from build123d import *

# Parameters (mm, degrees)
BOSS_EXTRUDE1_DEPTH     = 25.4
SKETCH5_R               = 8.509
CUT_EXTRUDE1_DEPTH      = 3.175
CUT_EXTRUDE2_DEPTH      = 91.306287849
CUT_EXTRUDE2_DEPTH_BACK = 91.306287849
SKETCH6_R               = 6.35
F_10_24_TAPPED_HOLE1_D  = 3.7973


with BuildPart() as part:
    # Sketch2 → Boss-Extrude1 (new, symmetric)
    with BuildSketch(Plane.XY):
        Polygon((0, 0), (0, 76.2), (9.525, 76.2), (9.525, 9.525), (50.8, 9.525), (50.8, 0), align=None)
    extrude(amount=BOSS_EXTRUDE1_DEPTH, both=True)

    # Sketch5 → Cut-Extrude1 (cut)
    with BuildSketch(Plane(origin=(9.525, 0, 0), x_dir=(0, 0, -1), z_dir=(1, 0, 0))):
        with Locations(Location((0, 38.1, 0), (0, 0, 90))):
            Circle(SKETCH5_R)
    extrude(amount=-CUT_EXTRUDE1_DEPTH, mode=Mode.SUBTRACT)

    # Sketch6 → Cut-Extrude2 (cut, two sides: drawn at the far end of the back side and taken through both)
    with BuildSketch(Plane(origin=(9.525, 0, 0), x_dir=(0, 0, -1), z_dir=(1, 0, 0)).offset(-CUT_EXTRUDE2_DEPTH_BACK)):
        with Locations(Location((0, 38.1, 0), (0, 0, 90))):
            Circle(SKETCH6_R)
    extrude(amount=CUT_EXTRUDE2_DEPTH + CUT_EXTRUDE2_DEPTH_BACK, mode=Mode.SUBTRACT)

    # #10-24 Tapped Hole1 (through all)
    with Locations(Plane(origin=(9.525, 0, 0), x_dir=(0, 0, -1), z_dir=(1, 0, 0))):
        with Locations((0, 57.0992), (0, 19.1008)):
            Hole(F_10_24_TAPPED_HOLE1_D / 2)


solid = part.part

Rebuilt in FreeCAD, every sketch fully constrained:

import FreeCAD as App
import Part
import Sketcher

V = App.Vector
Q = App.Units.Quantity

doc = App.newDocument("Part")
body = doc.addObject("PartDesign::Body", "Body")

# Sketch on XY plane
sketch1 = body.newObject("Sketcher::SketchObject", "Sketch")
sketch1.AttachmentSupport = (doc.getObject("XY_Plane"), [""])
sketch1.MapMode = "FlatFace"
sketch1.addGeometry([
    Part.LineSegment(V(0, 76, 0), V(0, 0, 0)),  # 0
    Part.LineSegment(V(0, 0, 0), V(51, 0, 0)),  # 1
    Part.LineSegment(V(51, 0, 0), V(51, 10, 0)),  # 2
    Part.LineSegment(V(51, 10, 0), V(10, 10, 0)),  # 3
    Part.LineSegment(V(10, 10, 0), V(10, 76, 0)),  # 4
    Part.LineSegment(V(10, 76, 0), V(0, 76, 0)),  # 5
], False)
sketch1.addConstraint([
    Sketcher.Constraint("Coincident", 0, 2, 1, 1),
    Sketcher.Constraint("Coincident", 1, 2, 2, 1),
    Sketcher.Constraint("Coincident", 2, 2, 3, 1),
    Sketcher.Constraint("Coincident", 3, 2, 4, 1),
    Sketcher.Constraint("Coincident", 4, 2, 5, 1),
    Sketcher.Constraint("Coincident", 5, 2, 0, 1),
    Sketcher.Constraint("Vertical", 0),
    Sketcher.Constraint("Horizontal", 1),
    Sketcher.Constraint("Vertical", 2),
    Sketcher.Constraint("Horizontal", 3),
    Sketcher.Constraint("Vertical", 4),
    Sketcher.Constraint("Horizontal", 5),
    Sketcher.Constraint("Coincident", 0, 2, -1, 1),
    Sketcher.Constraint("Equal", 5, 2),
    Sketcher.Constraint("DistanceX", 1, 1, 1, 2, Q("2 in")),
    Sketcher.Constraint("DistanceY", 0, 2, 0, 1, Q("3 in")),
    Sketcher.Constraint("DistanceX", 3, 2, 3, 1, Q("1.625 in")),
])
pad1 = body.newObject("PartDesign::Pad", "Pad")
pad1.Profile = sketch1
pad1.Length = Q("2 in")
pad1.Midplane = True

# Sketch on YZ plane
sketch2 = body.newObject("Sketcher::SketchObject", "Sketch001")
sketch2.AttachmentSupport = (doc.getObject("YZ_Plane"), [""])
sketch2.MapMode = "FlatFace"
sketch2.AttachmentOffset = App.Placement(V(0, 0, 0.375 * 25.4), App.Rotation())
sketch2.addGeometry(Part.Circle(V(38, 0, 0), V(0, 0, 1), 9), False)
sketch2.addConstraint([
    Sketcher.Constraint("PointOnObject", 0, 3, -1),
    Sketcher.Constraint("Diameter", 0, Q("0.67 in")),
    Sketcher.Constraint("DistanceX", -1, 1, 0, 3, Q("1.5 in")),
])
pocket1 = body.newObject("PartDesign::Pocket", "Pocket")
pocket1.Profile = sketch2
pocket1.Length = Q("0.125 in")

# Sketch on YZ plane
sketch3 = body.newObject("Sketcher::SketchObject", "Sketch002")
sketch3.AttachmentSupport = (doc.getObject("YZ_Plane"), [""])
sketch3.MapMode = "FlatFace"
sketch3.AttachmentOffset = App.Placement(V(0, 0, 0.375 * 25.4), App.Rotation())
sketch3.addGeometry(Part.Circle(V(38, 0, 0), V(0, 0, 1), 6), False)
sketch3.addConstraint([
    Sketcher.Constraint("PointOnObject", 0, 3, -1),
    Sketcher.Constraint("Diameter", 0, Q("0.5 in")),
    Sketcher.Constraint("DistanceX", -1, 1, 0, 3, Q("1.5 in")),
])
pocket2 = body.newObject("PartDesign::Pocket", "Pocket001")
pocket2.Profile = sketch3
pocket2.Type = "ThroughAll"
pocket2.Midplane = True

# Sketch on YZ plane
sketch4 = body.newObject("Sketcher::SketchObject", "Sketch003")
sketch4.AttachmentSupport = (doc.getObject("YZ_Plane"), [""])
sketch4.MapMode = "FlatFace"
sketch4.AttachmentOffset = App.Placement(V(0, 0, 0.375 * 25.4), App.Rotation())
sketch4.addGeometry([
    Part.Circle(V(57.1, 0, 0), V(0, 0, 1), 1.9),
    Part.Circle(V(19.1, 0, 0), V(0, 0, 1), 1.9),
], False)
sketch4.addConstraint([
    Sketcher.Constraint("Equal", 0, 1),
    Sketcher.Constraint("PointOnObject", 0, 3, -1),
    Sketcher.Constraint("PointOnObject", 1, 3, -1),
    Sketcher.Constraint("Diameter", 0, Q("0.1495 in")),
    Sketcher.Constraint("DistanceX", -1, 1, 0, 3, Q("2.248 in")),
    Sketcher.Constraint("DistanceX", -1, 1, 1, 3, Q("0.752 in")),
])
doc.recompute()
hole = body.newObject("PartDesign::Hole", "Hole")
hole.Profile = sketch4
hole.ThreadType = "None"
hole.Diameter = Q("0.1495 in")
hole.DepthType = "ThroughAll"

doc.recompute()
